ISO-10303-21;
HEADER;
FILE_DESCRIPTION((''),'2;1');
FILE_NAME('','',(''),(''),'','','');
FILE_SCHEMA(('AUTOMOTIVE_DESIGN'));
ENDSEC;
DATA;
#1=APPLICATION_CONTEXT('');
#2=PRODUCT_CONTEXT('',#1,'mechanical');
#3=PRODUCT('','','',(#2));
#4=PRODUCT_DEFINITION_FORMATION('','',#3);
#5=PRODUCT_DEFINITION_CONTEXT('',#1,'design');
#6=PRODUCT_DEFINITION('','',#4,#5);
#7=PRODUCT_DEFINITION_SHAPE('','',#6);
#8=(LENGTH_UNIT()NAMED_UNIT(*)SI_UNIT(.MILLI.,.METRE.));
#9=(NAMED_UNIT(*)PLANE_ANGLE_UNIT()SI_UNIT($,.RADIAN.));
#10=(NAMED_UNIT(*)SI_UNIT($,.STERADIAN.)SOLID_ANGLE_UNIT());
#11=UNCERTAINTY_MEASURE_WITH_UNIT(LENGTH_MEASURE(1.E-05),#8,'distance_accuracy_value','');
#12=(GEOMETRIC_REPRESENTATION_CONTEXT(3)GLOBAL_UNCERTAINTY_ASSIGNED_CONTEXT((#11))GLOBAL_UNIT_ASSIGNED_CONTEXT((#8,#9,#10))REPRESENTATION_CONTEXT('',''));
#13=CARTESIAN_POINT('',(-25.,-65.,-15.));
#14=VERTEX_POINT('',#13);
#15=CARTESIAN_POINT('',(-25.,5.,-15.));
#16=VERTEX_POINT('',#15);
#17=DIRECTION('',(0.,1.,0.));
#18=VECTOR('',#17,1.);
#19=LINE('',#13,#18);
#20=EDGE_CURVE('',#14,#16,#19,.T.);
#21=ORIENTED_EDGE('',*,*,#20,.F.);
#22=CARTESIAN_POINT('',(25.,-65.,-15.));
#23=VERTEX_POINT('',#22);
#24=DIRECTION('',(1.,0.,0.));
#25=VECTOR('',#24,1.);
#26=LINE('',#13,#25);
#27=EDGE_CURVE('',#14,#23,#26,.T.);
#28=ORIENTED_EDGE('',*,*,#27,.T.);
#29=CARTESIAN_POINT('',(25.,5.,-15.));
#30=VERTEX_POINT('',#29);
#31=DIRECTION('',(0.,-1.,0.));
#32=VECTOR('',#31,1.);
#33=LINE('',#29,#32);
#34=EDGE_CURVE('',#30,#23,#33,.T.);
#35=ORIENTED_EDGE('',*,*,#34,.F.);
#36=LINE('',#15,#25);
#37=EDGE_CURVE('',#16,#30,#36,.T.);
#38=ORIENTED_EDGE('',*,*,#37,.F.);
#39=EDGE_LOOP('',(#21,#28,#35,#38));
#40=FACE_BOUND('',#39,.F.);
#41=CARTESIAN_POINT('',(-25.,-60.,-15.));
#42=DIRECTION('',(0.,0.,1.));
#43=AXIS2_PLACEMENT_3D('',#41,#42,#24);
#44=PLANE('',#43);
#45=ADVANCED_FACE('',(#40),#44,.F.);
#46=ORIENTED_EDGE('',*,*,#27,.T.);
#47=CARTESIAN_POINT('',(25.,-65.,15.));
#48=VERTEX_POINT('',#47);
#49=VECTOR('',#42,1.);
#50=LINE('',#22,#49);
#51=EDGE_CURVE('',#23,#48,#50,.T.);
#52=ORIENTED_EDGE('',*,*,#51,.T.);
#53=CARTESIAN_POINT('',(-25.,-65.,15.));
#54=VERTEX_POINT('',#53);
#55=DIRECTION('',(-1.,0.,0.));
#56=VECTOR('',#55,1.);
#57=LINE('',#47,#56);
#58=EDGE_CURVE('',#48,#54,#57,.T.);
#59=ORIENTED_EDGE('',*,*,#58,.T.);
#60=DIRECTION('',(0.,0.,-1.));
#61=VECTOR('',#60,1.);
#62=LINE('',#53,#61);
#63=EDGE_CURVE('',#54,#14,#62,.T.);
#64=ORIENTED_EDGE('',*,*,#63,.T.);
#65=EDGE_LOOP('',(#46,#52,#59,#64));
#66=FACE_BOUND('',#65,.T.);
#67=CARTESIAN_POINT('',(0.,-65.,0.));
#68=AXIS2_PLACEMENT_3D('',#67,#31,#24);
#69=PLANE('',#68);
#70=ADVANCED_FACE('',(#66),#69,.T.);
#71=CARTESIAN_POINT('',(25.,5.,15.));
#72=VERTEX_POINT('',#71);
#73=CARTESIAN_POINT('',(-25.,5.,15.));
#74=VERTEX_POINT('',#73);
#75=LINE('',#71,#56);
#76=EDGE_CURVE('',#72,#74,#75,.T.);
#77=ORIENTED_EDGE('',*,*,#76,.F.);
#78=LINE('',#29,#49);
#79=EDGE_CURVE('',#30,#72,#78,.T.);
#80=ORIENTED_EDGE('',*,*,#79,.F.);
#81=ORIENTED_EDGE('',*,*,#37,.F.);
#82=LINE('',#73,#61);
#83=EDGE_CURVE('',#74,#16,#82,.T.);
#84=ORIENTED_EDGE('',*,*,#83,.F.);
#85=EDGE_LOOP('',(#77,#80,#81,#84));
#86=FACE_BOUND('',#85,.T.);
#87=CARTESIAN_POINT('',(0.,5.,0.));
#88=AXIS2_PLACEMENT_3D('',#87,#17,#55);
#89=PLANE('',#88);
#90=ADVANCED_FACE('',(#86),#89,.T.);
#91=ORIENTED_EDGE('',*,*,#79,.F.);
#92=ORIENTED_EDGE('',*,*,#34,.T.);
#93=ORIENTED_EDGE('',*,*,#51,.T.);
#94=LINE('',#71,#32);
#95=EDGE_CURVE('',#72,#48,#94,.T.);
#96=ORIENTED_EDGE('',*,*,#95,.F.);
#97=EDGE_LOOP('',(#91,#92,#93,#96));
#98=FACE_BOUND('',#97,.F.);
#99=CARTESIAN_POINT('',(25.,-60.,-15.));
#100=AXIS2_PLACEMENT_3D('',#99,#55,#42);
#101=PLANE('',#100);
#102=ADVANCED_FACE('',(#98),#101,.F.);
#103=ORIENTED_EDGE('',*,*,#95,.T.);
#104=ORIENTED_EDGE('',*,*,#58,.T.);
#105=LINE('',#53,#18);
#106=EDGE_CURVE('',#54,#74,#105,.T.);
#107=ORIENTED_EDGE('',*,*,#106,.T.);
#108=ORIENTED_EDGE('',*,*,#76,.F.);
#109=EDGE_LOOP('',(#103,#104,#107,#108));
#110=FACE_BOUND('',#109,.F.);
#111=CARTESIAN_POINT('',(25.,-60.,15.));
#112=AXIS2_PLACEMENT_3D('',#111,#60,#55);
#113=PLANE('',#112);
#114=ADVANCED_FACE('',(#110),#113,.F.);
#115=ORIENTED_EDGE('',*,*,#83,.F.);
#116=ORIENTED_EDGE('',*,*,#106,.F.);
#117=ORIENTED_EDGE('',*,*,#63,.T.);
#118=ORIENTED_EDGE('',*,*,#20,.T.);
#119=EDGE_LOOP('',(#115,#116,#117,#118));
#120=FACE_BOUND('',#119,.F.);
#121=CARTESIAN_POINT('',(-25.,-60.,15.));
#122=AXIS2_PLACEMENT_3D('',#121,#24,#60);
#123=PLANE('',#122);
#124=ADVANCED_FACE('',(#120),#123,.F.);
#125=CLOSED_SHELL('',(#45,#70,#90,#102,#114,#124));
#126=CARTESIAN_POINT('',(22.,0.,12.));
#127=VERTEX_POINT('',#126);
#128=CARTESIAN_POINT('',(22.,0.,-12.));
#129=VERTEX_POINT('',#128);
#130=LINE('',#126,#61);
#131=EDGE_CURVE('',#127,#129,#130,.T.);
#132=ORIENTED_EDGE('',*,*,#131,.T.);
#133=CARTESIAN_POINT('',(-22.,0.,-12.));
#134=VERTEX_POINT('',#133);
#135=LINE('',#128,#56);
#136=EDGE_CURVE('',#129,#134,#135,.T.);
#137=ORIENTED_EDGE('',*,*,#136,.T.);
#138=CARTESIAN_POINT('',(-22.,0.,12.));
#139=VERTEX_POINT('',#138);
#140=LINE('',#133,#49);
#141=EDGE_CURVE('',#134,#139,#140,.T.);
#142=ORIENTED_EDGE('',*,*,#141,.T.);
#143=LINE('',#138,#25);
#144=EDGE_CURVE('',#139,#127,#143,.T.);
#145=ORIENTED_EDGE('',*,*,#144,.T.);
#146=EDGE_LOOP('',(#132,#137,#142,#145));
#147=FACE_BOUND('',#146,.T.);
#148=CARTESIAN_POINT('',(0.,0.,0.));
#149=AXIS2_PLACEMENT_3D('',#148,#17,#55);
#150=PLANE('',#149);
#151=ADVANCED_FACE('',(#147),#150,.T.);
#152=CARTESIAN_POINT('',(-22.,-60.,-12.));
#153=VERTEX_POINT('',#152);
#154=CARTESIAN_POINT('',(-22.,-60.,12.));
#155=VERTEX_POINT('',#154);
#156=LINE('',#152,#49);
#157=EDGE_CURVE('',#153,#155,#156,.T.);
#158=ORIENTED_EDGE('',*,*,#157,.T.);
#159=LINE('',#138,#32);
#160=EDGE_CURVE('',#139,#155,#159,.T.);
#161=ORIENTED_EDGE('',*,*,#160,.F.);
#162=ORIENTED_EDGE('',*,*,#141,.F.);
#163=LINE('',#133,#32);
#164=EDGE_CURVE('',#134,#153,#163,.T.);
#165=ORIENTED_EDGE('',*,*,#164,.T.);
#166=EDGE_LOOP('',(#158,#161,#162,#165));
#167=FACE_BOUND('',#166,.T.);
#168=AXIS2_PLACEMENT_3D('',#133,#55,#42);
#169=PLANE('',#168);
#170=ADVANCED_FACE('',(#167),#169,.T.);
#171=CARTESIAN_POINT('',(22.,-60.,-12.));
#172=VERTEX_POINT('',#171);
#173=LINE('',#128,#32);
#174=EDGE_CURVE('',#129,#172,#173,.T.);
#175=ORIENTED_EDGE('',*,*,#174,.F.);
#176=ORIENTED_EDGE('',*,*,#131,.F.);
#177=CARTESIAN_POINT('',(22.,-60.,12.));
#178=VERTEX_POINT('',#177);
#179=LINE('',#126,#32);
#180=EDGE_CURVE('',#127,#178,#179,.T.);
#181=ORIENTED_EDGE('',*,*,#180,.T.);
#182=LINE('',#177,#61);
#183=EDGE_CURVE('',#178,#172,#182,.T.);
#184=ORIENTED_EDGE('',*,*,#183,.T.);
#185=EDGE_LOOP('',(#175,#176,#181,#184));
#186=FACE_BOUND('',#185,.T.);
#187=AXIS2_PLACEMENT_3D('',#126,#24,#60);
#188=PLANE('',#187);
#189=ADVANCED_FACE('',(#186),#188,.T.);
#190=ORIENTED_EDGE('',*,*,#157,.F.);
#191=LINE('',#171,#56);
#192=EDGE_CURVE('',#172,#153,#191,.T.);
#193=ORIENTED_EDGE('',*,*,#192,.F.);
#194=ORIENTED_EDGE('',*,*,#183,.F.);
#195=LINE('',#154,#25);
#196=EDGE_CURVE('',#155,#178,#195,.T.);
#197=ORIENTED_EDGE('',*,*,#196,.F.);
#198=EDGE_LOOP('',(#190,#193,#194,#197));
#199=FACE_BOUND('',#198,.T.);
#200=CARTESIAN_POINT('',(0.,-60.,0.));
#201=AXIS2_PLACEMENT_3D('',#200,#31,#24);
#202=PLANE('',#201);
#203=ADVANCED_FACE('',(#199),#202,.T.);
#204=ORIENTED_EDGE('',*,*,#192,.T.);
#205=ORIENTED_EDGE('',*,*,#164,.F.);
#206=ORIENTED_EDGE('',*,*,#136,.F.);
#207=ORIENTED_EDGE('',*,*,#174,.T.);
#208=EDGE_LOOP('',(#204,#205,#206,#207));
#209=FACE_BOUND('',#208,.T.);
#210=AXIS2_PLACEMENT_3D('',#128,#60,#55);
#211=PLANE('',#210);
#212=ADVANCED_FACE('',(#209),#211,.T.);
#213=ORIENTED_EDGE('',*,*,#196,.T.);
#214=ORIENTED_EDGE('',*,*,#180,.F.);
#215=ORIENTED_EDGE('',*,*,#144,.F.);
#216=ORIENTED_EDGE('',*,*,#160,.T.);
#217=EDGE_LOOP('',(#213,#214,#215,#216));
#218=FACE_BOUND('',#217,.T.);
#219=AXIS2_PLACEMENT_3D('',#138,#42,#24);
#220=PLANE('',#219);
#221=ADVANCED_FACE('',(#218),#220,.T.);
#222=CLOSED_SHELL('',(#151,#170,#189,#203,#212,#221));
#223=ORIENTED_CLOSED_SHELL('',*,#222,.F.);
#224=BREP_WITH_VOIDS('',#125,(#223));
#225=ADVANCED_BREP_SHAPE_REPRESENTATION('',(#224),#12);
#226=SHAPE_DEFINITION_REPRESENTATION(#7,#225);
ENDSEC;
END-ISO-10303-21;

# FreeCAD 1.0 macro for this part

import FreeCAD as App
import Part
import Sketcher

V = App.Vector

doc = App.newDocument("Part")
body = doc.addObject("PartDesign::Body", "Body")

# Sketch on XZ plane
sketch1 = body.newObject("Sketcher::SketchObject", "Sketch")
sketch1.AttachmentSupport = (doc.getObject("XZ_Plane"), [""])
sketch1.MapMode = "FlatFace"
sketch1.addGeometry([
    Part.LineSegment(V(-25, 15, 0), V(25, 15, 0)),
    Part.LineSegment(V(25, 15, 0), V(25, -15, 0)),
    Part.LineSegment(V(25, -15, 0), V(-25, -15, 0)),
    Part.LineSegment(V(-25, -15, 0), V(-25, 15, 0)),
], False)
sketch1.addConstraint([
    Sketcher.Constraint("Coincident", 0, 2, 1, 1),
    Sketcher.Constraint("Coincident", 1, 2, 2, 1),
    Sketcher.Constraint("Coincident", 2, 2, 3, 1),
    Sketcher.Constraint("Coincident", 3, 2, 0, 1),
    Sketcher.Constraint("Horizontal", 0),
    Sketcher.Constraint("Vertical", 1),
    Sketcher.Constraint("Horizontal", 2),
    Sketcher.Constraint("Vertical", 3),
    Sketcher.Constraint("Symmetric", 0, 2, 2, 2, -1, 1),
    Sketcher.Constraint("DistanceX", 0, 1, 0, 2, 50.0),
    Sketcher.Constraint("DistanceY", 1, 2, 1, 1, 30.0),
])
pad1 = body.newObject("PartDesign::Pad", "Pad")
pad1.Profile = sketch1
pad1.Length = 5
pad1.Reversed = True

# Sketch on XZ plane
sketch2 = body.newObject("Sketcher::SketchObject", "Sketch001")
sketch2.AttachmentSupport = (doc.getObject("XZ_Plane"), [""])
sketch2.MapMode = "FlatFace"
sketch2.addGeometry([
    Part.LineSegment(V(-25, 15, 0), V(-25, -15, 0)),  # 0
    Part.LineSegment(V(-25, -15, 0), V(25, -15, 0)),  # 1
    Part.LineSegment(V(25, -15, 0), V(25, 15, 0)),  # 2
    Part.LineSegment(V(25, 15, 0), V(-25, 15, 0)),  # 3
    Part.LineSegment(V(-22, -12, 0), V(-22, 12, 0)),  # 4
    Part.LineSegment(V(-22, 12, 0), V(22, 12, 0)),  # 5
    Part.LineSegment(V(22, 12, 0), V(22, -12, 0)),  # 6
    Part.LineSegment(V(22, -12, 0), V(-22, -12, 0)),  # 7
], False)
sketch2.addConstraint([
    Sketcher.Constraint("Coincident", 0, 2, 1, 1),
    Sketcher.Constraint("Coincident", 1, 2, 2, 1),
    Sketcher.Constraint("Coincident", 2, 2, 3, 1),
    Sketcher.Constraint("Coincident", 3, 2, 0, 1),
    Sketcher.Constraint("Coincident", 4, 2, 5, 1),
    Sketcher.Constraint("Coincident", 5, 2, 6, 1),
    Sketcher.Constraint("Coincident", 6, 2, 7, 1),
    Sketcher.Constraint("Coincident", 7, 2, 4, 1),
    Sketcher.Constraint("Vertical", 0),
    Sketcher.Constraint("Horizontal", 1),
    Sketcher.Constraint("Vertical", 2),
    Sketcher.Constraint("Horizontal", 3),
    Sketcher.Constraint("Vertical", 4),
    Sketcher.Constraint("Horizontal", 5),
    Sketcher.Constraint("Vertical", 6),
    Sketcher.Constraint("Horizontal", 7),
    Sketcher.Constraint("Symmetric", 0, 2, 2, 2, -1, 1),
    Sketcher.Constraint("Symmetric", 4, 2, 6, 2, -1, 1),
    Sketcher.Constraint("DistanceX", 3, 2, 4, 2, 3.0),
    Sketcher.Constraint("DistanceY", 4, 2, 3, 2, 3.0),
    Sketcher.Constraint("DistanceX", 1, 1, 1, 2, 50.0),
    Sketcher.Constraint("DistanceY", 0, 2, 0, 1, 30.0),
])
pad2 = body.newObject("PartDesign::Pad", "Pad001")
pad2.Profile = sketch2
pad2.Length = 60

# Sketch on XZ plane
sketch3 = body.newObject("Sketcher::SketchObject", "Sketch002")
sketch3.AttachmentSupport = (doc.getObject("XZ_Plane"), [""])
sketch3.MapMode = "FlatFace"
sketch3.AttachmentOffset = App.Placement(V(0, 0, 60), App.Rotation())
sketch3.addGeometry([
    Part.LineSegment(V(-25, -15, 0), V(25, -15, 0)),
    Part.LineSegment(V(25, -15, 0), V(25, 15, 0)),
    Part.LineSegment(V(25, 15, 0), V(-25, 15, 0)),
    Part.LineSegment(V(-25, 15, 0), V(-25, -15, 0)),
], False)
sketch3.addConstraint([
    Sketcher.Constraint("Coincident", 0, 2, 1, 1),
    Sketcher.Constraint("Coincident", 1, 2, 2, 1),
    Sketcher.Constraint("Coincident", 2, 2, 3, 1),
    Sketcher.Constraint("Coincident", 3, 2, 0, 1),
    Sketcher.Constraint("Horizontal", 0),
    Sketcher.Constraint("Vertical", 1),
    Sketcher.Constraint("Horizontal", 2),
    Sketcher.Constraint("Vertical", 3),
    Sketcher.Constraint("Symmetric", 0, 2, 2, 2, -1, 1),
    Sketcher.Constraint("DistanceX", 0, 1, 0, 2, 50.0),
    Sketcher.Constraint("DistanceY", 1, 1, 1, 2, 30.0),
])
pad3 = body.newObject("PartDesign::Pad", "Pad002")
pad3.Profile = sketch3
pad3.Length = 5

doc.recompute()
